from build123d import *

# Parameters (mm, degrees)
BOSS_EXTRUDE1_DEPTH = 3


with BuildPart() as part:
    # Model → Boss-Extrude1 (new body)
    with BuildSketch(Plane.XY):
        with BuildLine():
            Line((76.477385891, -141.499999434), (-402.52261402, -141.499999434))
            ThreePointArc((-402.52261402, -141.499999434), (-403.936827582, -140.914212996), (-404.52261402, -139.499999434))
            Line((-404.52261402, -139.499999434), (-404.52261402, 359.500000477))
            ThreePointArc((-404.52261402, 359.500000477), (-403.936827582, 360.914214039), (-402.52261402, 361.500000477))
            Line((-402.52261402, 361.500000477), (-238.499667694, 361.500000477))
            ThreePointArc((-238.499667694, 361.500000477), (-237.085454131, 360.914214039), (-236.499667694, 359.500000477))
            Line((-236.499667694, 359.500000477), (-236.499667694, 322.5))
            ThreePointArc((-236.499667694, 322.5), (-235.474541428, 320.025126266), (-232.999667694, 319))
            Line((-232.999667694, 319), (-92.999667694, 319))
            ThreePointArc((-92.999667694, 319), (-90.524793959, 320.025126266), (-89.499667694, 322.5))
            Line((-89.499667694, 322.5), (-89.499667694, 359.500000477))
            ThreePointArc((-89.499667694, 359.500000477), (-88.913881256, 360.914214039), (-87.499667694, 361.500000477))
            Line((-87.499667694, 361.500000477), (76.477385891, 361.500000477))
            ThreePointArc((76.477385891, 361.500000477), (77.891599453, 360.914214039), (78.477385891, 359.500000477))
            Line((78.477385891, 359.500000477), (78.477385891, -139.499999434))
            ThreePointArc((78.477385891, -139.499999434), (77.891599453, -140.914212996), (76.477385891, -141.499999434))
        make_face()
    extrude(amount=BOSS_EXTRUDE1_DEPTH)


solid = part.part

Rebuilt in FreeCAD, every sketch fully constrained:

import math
import FreeCAD as App
import Part
import Sketcher
from FreeCAD import Vector

doc = App.newDocument("Part")
body = doc.addObject("PartDesign::Body", "Body")

sketch1 = doc.addObject("Sketcher::SketchObject", "Sketch")
body.addObject(sketch1)
sketch1.AttachmentSupport = (doc.XY_Plane, [""])
sketch1.MapMode = "FlatFace"
sketch1.addGeometry([
    Part.LineSegment(Vector(-402.522614, -141.499999, 0), Vector(76.477386, -141.499999, 0)),
    Part.ArcOfCircle(Part.Circle(Vector(76.477386, -139.499999, 0), Vector(0, 0, 1), 2), math.radians(-90), math.radians(0)),
    Part.LineSegment(Vector(78.477386, -139.499999, 0), Vector(78.477386, 359.5, 0)),
    Part.ArcOfCircle(Part.Circle(Vector(76.477386, 359.5, 0), Vector(0, 0, 1), 2), math.radians(0), math.radians(90)),
    Part.LineSegment(Vector(76.477386, 361.5, 0), Vector(-87.499668, 361.5, 0)),
    Part.ArcOfCircle(Part.Circle(Vector(-87.499668, 359.5, 0), Vector(0, 0, 1), 2), math.radians(90), math.radians(180)),
    Part.LineSegment(Vector(-89.499668, 359.5, 0), Vector(-89.499668, 322.5, 0)),
    Part.ArcOfCircle(Part.Circle(Vector(-92.999668, 322.5, 0), Vector(0, 0, 1), 3.5), math.radians(-90), math.radians(0)),
    Part.LineSegment(Vector(-92.999668, 319, 0), Vector(-232.999668, 319, 0)),
    Part.ArcOfCircle(Part.Circle(Vector(-232.999668, 322.5, 0), Vector(0, 0, 1), 3.5), math.radians(-180), math.radians(-90)),
    Part.LineSegment(Vector(-236.499668, 322.5, 0), Vector(-236.499668, 359.5, 0)),
    Part.ArcOfCircle(Part.Circle(Vector(-238.499668, 359.5, 0), Vector(0, 0, 1), 2), math.radians(0), math.radians(90)),
    Part.LineSegment(Vector(-238.499668, 361.5, 0), Vector(-402.522614, 361.5, 0)),
    Part.ArcOfCircle(Part.Circle(Vector(-402.522614, 359.5, 0), Vector(0, 0, 1), 2), math.radians(90), math.radians(180)),
    Part.LineSegment(Vector(-404.522614, 359.5, 0), Vector(-404.522614, -139.499999, 0)),
    Part.ArcOfCircle(Part.Circle(Vector(-402.522614, -139.499999, 0), Vector(0, 0, 1), 2), math.radians(-180), math.radians(-90)),
], False)
sketch1.addConstraint([
    Sketcher.Constraint("Tangent", 0, 2, 1, 1),
    Sketcher.Constraint("Tangent", 1, 2, 2, 1),
    Sketcher.Constraint("Tangent", 2, 2, 3, 1),
    Sketcher.Constraint("Tangent", 3, 2, 4, 1),
    Sketcher.Constraint("Tangent", 4, 2, 5, 1),
    Sketcher.Constraint("Tangent", 5, 2, 6, 1),
    Sketcher.Constraint("Tangent", 6, 2, 7, 2),
    Sketcher.Constraint("Tangent", 7, 1, 8, 1),
    Sketcher.Constraint("Tangent", 8, 2, 9, 2),
    Sketcher.Constraint("Tangent", 9, 1, 10, 1),
    Sketcher.Constraint("Tangent", 10, 2, 11, 1),
    Sketcher.Constraint("Tangent", 11, 2, 12, 1),
    Sketcher.Constraint("Tangent", 12, 2, 13, 1),
    Sketcher.Constraint("Tangent", 13, 2, 14, 1),
    Sketcher.Constraint("Tangent", 14, 2, 15, 1),
    Sketcher.Constraint("Tangent", 15, 2, 0, 1),
    Sketcher.Constraint("Horizontal", 0),
    Sketcher.Constraint("Vertical", 2),
    Sketcher.Constraint("Horizontal", 4),
    Sketcher.Constraint("Vertical", 6),
    Sketcher.Constraint("Horizontal", 8),
    Sketcher.Constraint("Vertical", 10),
    Sketcher.Constraint("Horizontal", 12),
    Sketcher.Constraint("Vertical", 14),
    Sketcher.Constraint("Equal", 1, 3),
    Sketcher.Constraint("Equal", 3, 5),
    Sketcher.Constraint("Equal", 7, 9),
    Sketcher.Constraint("Equal", 5, 11),
    Sketcher.Constraint("Equal", 11, 13),
    Sketcher.Constraint("Equal", 13, 15),
    Sketcher.Constraint("Horizontal", 5, 3, 11, 3),
    Sketcher.Constraint("Radius", 1, 2.0),
    Sketcher.Constraint("Radius", 7, 3.5),
    Sketcher.Constraint("DistanceX", 0, 1, 0, 2, 479.0),
    Sketcher.Constraint("DistanceX", 8, 2, 8, 1, 140.0),
    Sketcher.Constraint("DistanceY", 2, 1, 2, 2, 499.0),
    Sketcher.Constraint("DistanceY", 6, 2, 6, 1, 37.0),
    Sketcher.Constraint("DistanceY", -1, 1, 7, 1, 319.0),
    Sketcher.Constraint("DistanceX", 4, 2, 4, 1, 163.977054),
    Sketcher.Constraint("DistanceX", -1, 1, 1, 3, 76.477386),
])
pad1 = doc.addObject("PartDesign::Pad", "Pad")
body.addObject(pad1)
pad1.Profile = sketch1
pad1.Length = 3

doc.recompute()
